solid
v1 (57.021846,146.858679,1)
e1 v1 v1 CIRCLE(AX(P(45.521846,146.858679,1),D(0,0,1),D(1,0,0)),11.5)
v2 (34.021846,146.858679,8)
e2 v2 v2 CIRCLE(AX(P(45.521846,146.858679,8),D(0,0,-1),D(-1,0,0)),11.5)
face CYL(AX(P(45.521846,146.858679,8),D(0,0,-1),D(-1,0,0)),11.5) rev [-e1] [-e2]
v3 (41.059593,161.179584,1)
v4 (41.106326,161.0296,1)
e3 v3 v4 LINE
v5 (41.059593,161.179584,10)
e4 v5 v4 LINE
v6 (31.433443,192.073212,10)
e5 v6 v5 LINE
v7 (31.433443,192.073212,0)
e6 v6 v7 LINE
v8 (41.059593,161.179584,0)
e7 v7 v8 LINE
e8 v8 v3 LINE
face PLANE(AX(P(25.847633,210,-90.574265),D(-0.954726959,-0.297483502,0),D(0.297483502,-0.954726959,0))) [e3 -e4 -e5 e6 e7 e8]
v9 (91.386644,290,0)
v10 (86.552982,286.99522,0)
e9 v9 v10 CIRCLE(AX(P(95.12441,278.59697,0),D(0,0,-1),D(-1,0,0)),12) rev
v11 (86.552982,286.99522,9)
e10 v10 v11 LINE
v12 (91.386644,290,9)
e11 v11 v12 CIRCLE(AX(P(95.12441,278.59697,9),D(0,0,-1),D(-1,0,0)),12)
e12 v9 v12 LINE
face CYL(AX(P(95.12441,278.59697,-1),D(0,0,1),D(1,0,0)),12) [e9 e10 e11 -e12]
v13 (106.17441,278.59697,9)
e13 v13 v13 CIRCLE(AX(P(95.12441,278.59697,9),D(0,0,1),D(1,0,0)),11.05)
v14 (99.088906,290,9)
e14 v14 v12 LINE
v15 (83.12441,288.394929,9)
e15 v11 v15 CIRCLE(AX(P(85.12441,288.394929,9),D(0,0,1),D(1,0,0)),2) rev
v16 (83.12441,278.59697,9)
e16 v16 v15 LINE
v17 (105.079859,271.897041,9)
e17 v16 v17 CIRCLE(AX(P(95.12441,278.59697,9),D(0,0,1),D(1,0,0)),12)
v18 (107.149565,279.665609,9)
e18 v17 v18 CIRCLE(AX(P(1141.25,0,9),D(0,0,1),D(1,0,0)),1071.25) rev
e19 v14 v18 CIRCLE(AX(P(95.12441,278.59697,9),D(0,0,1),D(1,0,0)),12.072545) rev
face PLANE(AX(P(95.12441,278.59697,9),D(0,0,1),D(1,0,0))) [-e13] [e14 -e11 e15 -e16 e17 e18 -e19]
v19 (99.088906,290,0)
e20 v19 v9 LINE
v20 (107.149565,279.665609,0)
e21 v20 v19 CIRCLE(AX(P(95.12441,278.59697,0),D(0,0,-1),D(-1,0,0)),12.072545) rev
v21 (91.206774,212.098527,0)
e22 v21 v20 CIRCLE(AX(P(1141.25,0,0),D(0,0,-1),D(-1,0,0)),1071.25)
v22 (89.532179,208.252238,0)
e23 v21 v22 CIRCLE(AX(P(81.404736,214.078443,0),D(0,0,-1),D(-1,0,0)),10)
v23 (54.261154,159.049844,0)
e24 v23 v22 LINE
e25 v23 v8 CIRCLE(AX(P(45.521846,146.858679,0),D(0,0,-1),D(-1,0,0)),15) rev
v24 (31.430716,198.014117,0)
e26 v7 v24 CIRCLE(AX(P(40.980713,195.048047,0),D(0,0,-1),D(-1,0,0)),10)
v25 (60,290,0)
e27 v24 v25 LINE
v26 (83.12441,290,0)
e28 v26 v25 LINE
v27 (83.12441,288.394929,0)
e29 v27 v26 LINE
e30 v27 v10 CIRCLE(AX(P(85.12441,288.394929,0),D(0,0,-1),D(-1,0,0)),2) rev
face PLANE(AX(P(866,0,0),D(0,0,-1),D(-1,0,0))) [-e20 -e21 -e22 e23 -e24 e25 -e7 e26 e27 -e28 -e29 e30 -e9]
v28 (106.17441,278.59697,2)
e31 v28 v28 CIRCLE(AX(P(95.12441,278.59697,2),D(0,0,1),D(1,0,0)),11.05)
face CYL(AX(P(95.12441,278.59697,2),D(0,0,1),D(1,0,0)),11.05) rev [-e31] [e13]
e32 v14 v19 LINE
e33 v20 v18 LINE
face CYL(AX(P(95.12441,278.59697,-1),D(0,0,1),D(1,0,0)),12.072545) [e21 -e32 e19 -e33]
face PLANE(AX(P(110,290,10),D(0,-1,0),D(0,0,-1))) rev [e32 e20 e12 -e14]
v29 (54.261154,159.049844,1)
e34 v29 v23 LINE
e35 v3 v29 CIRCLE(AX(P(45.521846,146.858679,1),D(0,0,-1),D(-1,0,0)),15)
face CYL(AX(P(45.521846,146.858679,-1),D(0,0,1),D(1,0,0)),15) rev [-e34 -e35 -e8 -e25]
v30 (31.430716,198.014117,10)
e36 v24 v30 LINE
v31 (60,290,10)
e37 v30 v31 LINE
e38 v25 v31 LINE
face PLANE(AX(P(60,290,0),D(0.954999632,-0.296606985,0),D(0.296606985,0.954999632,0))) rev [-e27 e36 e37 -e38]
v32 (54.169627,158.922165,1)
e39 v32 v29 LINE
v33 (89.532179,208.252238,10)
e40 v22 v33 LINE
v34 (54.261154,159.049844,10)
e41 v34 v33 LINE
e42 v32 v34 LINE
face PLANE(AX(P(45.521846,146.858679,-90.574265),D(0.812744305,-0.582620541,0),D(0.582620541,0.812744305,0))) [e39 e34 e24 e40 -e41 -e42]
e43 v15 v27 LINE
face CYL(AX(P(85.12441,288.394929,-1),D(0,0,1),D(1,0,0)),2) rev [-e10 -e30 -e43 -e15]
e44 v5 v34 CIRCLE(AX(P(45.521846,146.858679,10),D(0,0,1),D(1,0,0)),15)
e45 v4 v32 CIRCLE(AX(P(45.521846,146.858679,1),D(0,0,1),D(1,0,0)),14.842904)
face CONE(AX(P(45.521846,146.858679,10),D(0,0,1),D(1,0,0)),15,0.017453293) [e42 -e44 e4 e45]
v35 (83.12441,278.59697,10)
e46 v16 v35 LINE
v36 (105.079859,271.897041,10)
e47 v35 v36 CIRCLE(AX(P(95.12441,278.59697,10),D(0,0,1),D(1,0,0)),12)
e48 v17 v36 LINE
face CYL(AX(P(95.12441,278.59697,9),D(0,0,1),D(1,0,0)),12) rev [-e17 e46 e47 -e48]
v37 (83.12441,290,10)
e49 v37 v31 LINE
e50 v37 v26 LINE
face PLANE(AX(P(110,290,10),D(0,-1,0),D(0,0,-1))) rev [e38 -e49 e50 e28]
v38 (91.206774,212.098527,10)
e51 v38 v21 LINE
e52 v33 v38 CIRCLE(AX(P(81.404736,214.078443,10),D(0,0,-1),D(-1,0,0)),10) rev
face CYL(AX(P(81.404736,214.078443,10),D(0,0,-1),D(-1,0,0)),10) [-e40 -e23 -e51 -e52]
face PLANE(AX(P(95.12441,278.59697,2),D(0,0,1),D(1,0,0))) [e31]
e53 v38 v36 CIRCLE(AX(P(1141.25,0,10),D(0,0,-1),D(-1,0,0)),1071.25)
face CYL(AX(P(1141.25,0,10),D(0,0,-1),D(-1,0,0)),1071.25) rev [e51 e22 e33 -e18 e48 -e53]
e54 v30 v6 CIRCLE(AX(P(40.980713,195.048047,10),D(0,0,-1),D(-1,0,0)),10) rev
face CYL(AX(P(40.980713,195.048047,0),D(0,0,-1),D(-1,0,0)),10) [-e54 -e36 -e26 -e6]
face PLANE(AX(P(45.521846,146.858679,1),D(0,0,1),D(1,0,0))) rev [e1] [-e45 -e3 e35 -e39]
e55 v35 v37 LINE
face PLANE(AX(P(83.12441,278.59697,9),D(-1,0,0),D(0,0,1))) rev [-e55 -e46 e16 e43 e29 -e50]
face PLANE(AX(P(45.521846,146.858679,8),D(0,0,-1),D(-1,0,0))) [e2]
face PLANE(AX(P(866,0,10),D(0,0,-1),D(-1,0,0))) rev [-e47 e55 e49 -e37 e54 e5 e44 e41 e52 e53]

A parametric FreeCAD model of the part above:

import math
import FreeCAD as App
import Part
import Sketcher

V = App.Vector


def edges_at(feature, points):
    """Names of the edges that pass closest to the given points."""
    edges = feature.Shape.Edges
    near = lambda p: min(range(len(edges)), key=lambda i: edges[i].distToShape(Part.Vertex(*p))[0])
    return sorted({f"Edge{near(p) + 1}" for p in points})


def faces_at(feature, points):
    """Names of the faces that lie closest to the given points."""
    faces = feature.Shape.Faces
    near = lambda p: min(range(len(faces)), key=lambda i: faces[i].distToShape(Part.Vertex(*p))[0])
    return sorted({f"Face{near(p) + 1}" for p in points})


def add_polygon(sketch, points):
    """Adds a closed chain of lines whose ends are joined by coincident constraints."""
    first, n = sketch.GeometryCount, len(points)
    for a, b in zip(points, points[1:] + points[:1]):
        sketch.addGeometry(Part.LineSegment(App.Vector(*a, 0), App.Vector(*b, 0)), False)
    for i in range(n):
        sketch.addConstraint(Sketcher.Constraint("Coincident", first + i, 2, first + (i + 1) % n, 1))

doc = App.newDocument("Part")
params = doc.addObject("Spreadsheet::Sheet", "Params")
for row, (alias, value) in enumerate([
    ("sketch1_radius", "866 mm"),
    ("sketch1_width", "70 mm"),
    ("sketch1_width2", "60 mm"),
    ("sketch1_radius2", "1071.25 mm"),
    ("pad1_length", "10 mm"),
    ("pad2_length", "10 mm"),
    ("sketch4_diameter", "30 mm"),
    ("pad3_length", "9 mm"),
    ("draft_angle", "1 deg"),
    ("fillet_radius", "10 mm"),
    ("sketch5_diameter", "23 mm"),
    ("pocket2_length", "14 mm"),
    ("sketch6_diameter", "30 mm"),
    ("pocket3_length", "2 mm"),
    ("sketch7_radius", "12 mm"),
    ("pocket4_length", "1 mm"),
    ("sketch8_diameter", "22.1 mm"),
    ("pocket5_length", "7 mm"),
    ("sketch9_radius", "12 mm"),
    ("pocket6_length", "10 mm"),
    ("fillet2_radius", "2 mm"),
    ("pocket7_length", "10 mm"),
    ("fillet3_radius", "10 mm"),
], start=1):
    params.set(f"A{row}", alias)
    params.set(f"B{row}", "=" + value)
    params.setAlias(f"B{row}", alias)

body = doc.addObject("PartDesign::Body", "Body")

sketch1 = body.newObject("Sketcher::SketchObject", "Sketch")
sketch1.AttachmentSupport = (doc.getObject("XY_Plane"), [""])
sketch1.MapMode = "FlatFace"
sketch1.addGeometry([
    Part.LineSegment(V(0, 0, 0), V(70, 0, 0)),
    Part.ArcOfCircle(Part.Circle(V(1141, 0, 0), V(0, 0, 1), 1071), math.radians(164.29), math.radians(180)),
    Part.LineSegment(V(110, 290, 0), V(50, 290, 0)),
    Part.ArcOfCircle(Part.Circle(V(866, 0, 0), V(0, 0, 1), 866), math.radians(160.44), math.radians(180)),
], False)
sketch1.addConstraint([
    Sketcher.Constraint("Coincident", 0, 2, 1, 2),
    Sketcher.Constraint("Coincident", 1, 1, 2, 1),
    Sketcher.Constraint("Coincident", 2, 2, 3, 1),
    Sketcher.Constraint("Coincident", 3, 2, 0, 1),
    Sketcher.Constraint("Horizontal", 0),
    Sketcher.Constraint("Horizontal", 2),
    Sketcher.Constraint("PointOnObject", 1, 3, -1),
    Sketcher.Constraint("PointOnObject", 3, 3, -1),
    Sketcher.Constraint("PointOnObject", 0, 2, -1),
    Sketcher.Constraint("Radius", 3, 866.0),
    Sketcher.Constraint("DistanceX", 0, 1, 0, 2, 70.0),
    Sketcher.Constraint("DistanceX", 2, 2, 2, 1, 60.0),
    Sketcher.Constraint("Radius", 1, 1071.25),
    Sketcher.Constraint("DistanceX", -1, 1, 3, 3, 866.0),
])
sketch1.setExpression("Constraints[9]", "Params.sketch1_radius")
sketch1.setExpression("Constraints[10]", "Params.sketch1_width")
sketch1.setExpression("Constraints[11]", "Params.sketch1_width2")
sketch1.setExpression("Constraints[12]", "Params.sketch1_radius2")
pad1 = body.newObject("PartDesign::Pad", "Pad")
pad1.Profile = sketch1
pad1.setExpression("Length", "Params.pad1_length")

sketch2 = body.newObject("Sketcher::SketchObject", "Sketch001")
sketch2.AttachmentSupport = (doc.getObject("XY_Plane"), [""])
sketch2.MapMode = "FlatFace"
sketch2.AttachmentOffset = App.Placement(V(0, 0, 10), App.Rotation())
add_polygon(sketch2, [(-33, 210), (-33, -43), (134, -43), (134, 210)])
sketch2.addConstraint([
    Sketcher.Constraint("Vertical", 0),
    Sketcher.Constraint("Horizontal", 1),
    Sketcher.Constraint("Vertical", 2),
    Sketcher.Constraint("Horizontal", 3),
    Sketcher.Constraint("DistanceY", -1, 1, 2, 2, 210.0),
    Sketcher.Constraint("DistanceY", 0, 2, 0, 1, 253.347099),
    Sketcher.Constraint("DistanceX", 1, 1, 1, 2, 166.922568),
    Sketcher.Constraint("DistanceX", 0, 2, -1, 1, 33.20451),
])
pocket1 = body.newObject("PartDesign::Pocket", "Pocket")
pocket1.Profile = sketch2
pocket1.Type = "UpToFirst"

sketch3 = body.newObject("Sketcher::SketchObject", "Sketch002")
sketch3.AttachmentSupport = (doc.getObject("XY_Plane"), [""])
sketch3.MapMode = "FlatFace"
sketch3.AttachmentOffset = App.Placement(V(0, 0, 10), App.Rotation())
add_polygon(sketch3, [(26, 210), (46, 147), (91, 210)])
sketch3.addConstraint([
    Sketcher.Constraint("Horizontal", 2),
    Sketcher.Constraint("DistanceY", -1, 1, 1, 2, 210.0),
    Sketcher.Constraint("DistanceX", 2, 2, 2, 1, 64.93744),
    Sketcher.Constraint("DistanceY", -1, 1, 0, 2, 146.858679),
    Sketcher.Constraint("Distance", 0, 66.135475),
    Sketcher.Constraint("DistanceX", -1, 1, 0, 2, 45.521846),
])
pad2 = body.newObject("PartDesign::Pad", "Pad001")
pad2.Profile = sketch3
pad2.setExpression("Length", "Params.pad2_length")
pad2.Reversed = True
body2 = doc.addObject("PartDesign::Body", "Body001")

sketch4 = body2.newObject("Sketcher::SketchObject", "Sketch003")
sketch4.AttachmentSupport = (doc.getObject("XY_Plane001"), [""])
sketch4.MapMode = "FlatFace"
sketch4.AttachmentOffset = App.Placement(V(0, 0, 10), App.Rotation())
sketch4.addGeometry(Part.Circle(V(46, 147, 0), V(0, 0, 1), 15), False)
sketch4.addConstraint([
    Sketcher.Constraint("Diameter", 0, 30.0),
    Sketcher.Constraint("DistanceY", -1, 1, 0, 3, 146.858679),
    Sketcher.Constraint("DistanceX", -1, 1, 0, 3, 45.521846),
])
sketch4.setExpression("Constraints[0]", "Params.sketch4_diameter")
pad3 = body2.newObject("PartDesign::Pad", "Pad002")
pad3.Profile = sketch4
pad3.setExpression("Length", "Params.pad3_length")
pad3.Reversed = True
doc.recompute()

datumplane = body2.newObject("PartDesign::Plane", "DatumPlane")
datumplane.AttachmentSupport = (doc.getObject("XY_Plane001"), [""])
datumplane.MapMode = "FlatFace"
datumplane.AttachmentOffset = App.Placement(V(0, 0, 10), App.Rotation())
draft = body2.newObject("PartDesign::Draft", "Draft")
draft.Base = (pad3, faces_at(pad3, [(30.522, 146.859, 5.5)]))
draft.NeutralPlane = (datumplane, [""])
draft.setExpression("Angle", "Params.draft_angle")
draft.Reversed = True
doc.recompute()

boolean = body.newObject("PartDesign::Boolean", "Boolean")
boolean.Type = "Fuse"
boolean.addObjects([body2])
doc.recompute()

fillet = body.newObject("PartDesign::Fillet", "Fillet")
fillet.Base = (boolean, edges_at(boolean, [(25.848, 210, 5), (90.785, 210, 5)]))
fillet.setExpression("Radius", "Params.fillet_radius")

sketch5 = body.newObject("Sketcher::SketchObject", "Sketch004")
sketch5.AttachmentSupport = (doc.getObject("XY_Plane"), [""])
sketch5.MapMode = "FlatFace"
sketch5.AttachmentOffset = App.Placement(V(0, 0, 1), App.Rotation())
sketch5.addGeometry(Part.Circle(V(46, 147, 0), V(0, 0, 1), 12), False)
sketch5.addConstraint([
    Sketcher.Constraint("Diameter", 0, 23.0),
    Sketcher.Constraint("DistanceY", -1, 1, 0, 3, 146.858679),
    Sketcher.Constraint("DistanceX", -1, 1, 0, 3, 45.521846),
])
sketch5.setExpression("Constraints[0]", "Params.sketch5_diameter")
pocket2 = body.newObject("PartDesign::Pocket", "Pocket001")
pocket2.Profile = sketch5
pocket2.setExpression("Length", "Params.pocket2_length")
pocket2.Midplane = True

sketch6 = body.newObject("Sketcher::SketchObject", "Sketch005")
sketch6.AttachmentSupport = (doc.getObject("XY_Plane"), [""])
sketch6.MapMode = "FlatFace"
sketch6.AttachmentOffset = App.Placement(V(0, 0, 1), App.Rotation())
sketch6.addGeometry(Part.Circle(V(46, 147, 0), V(0, 0, 1), 15), False)
sketch6.addConstraint([
    Sketcher.Constraint("Diameter", 0, 30.0),
    Sketcher.Constraint("DistanceY", -1, 1, 0, 3, 146.858679),
    Sketcher.Constraint("DistanceX", -1, 1, 0, 3, 45.521846),
])
sketch6.setExpression("Constraints[0]", "Params.sketch6_diameter")
pocket3 = body.newObject("PartDesign::Pocket", "Pocket002")
pocket3.Profile = sketch6
pocket3.setExpression("Length", "Params.pocket3_length")

sketch7 = body.newObject("Sketcher::SketchObject", "Sketch006")
sketch7.AttachmentSupport = (doc.getObject("XY_Plane"), [""])
sketch7.MapMode = "FlatFace"
sketch7.AttachmentOffset = App.Placement(V(0, 0, 10), App.Rotation())
sketch7.addGeometry([
    Part.LineSegment(V(83, 293, 0), V(83, 279, 0)),
    Part.ArcOfCircle(Part.Circle(V(95, 279, 0), V(0, 0, 1), 12), math.radians(180), math.radians(326)),
    Part.LineSegment(V(105, 272, 0), V(112, 272, 0)),
    Part.LineSegment(V(112, 272, 0), V(112, 293, 0)),
    Part.LineSegment(V(112, 293, 0), V(83, 293, 0)),
], False)
sketch7.addConstraint([
    Sketcher.Constraint("Tangent", 0, 2, 1, 1),
    Sketcher.Constraint("Coincident", 1, 2, 2, 1),
    Sketcher.Constraint("Coincident", 2, 2, 3, 1),
    Sketcher.Constraint("Coincident", 3, 2, 4, 1),
    Sketcher.Constraint("Coincident", 4, 2, 0, 1),
    Sketcher.Constraint("Vertical", 0),
    Sketcher.Constraint("Horizontal", 2),
    Sketcher.Constraint("Vertical", 3),
    Sketcher.Constraint("Horizontal", 4),
    Sketcher.Constraint("Radius", 1, 12.0),
    Sketcher.Constraint("DistanceY", 0, 2, 0, 1, 14.066151),
    Sketcher.Constraint("DistanceX", 2, 1, 2, 2, 6.572547),
    Sketcher.Constraint("DistanceX", 4, 2, 4, 1, 28.574764),
    Sketcher.Constraint("DistanceX", -1, 1, 1, 3, 95.12441),
    Sketcher.Constraint("DistanceY", -1, 1, 1, 3, 278.59697),
])
sketch7.setExpression("Constraints[9]", "Params.sketch7_radius")
pocket4 = body.newObject("PartDesign::Pocket", "Pocket003")
pocket4.Profile = sketch7
pocket4.setExpression("Length", "Params.pocket4_length")

sketch8 = body.newObject("Sketcher::SketchObject", "Sketch007")
sketch8.AttachmentSupport = (doc.getObject("XY_Plane"), [""])
sketch8.MapMode = "FlatFace"
sketch8.AttachmentOffset = App.Placement(V(0, 0, 9), App.Rotation())
sketch8.addGeometry(Part.Circle(V(95, 279, 0), V(0, 0, 1), 11), False)
sketch8.addConstraint([
    Sketcher.Constraint("Diameter", 0, 22.1),
    Sketcher.Constraint("DistanceX", -1, 1, 0, 3, 95.12441),
    Sketcher.Constraint("DistanceY", -1, 1, 0, 3, 278.59697),
])
sketch8.setExpression("Constraints[0]", "Params.sketch8_diameter")
pocket5 = body.newObject("PartDesign::Pocket", "Pocket004")
pocket5.Profile = sketch8
pocket5.setExpression("Length", "Params.pocket5_length")

sketch9 = body.newObject("Sketcher::SketchObject", "Sketch008")
sketch9.AttachmentSupport = (doc.getObject("XY_Plane"), [""])
sketch9.MapMode = "FlatFace"
sketch9.AttachmentOffset = App.Placement(V(0, 0, 9), App.Rotation())
sketch9.addGeometry([
    Part.LineSegment(V(83.1, 292, 0), V(83.1, 278.6, 0)),
    Part.ArcOfCircle(Part.Circle(V(95.1, 278.6, 0), V(0, 0, 1), 12), math.radians(108), math.radians(180)),
    Part.LineSegment(V(91.4, 290, 0), V(91.4, 292, 0)),
    Part.LineSegment(V(91.4, 292, 0), V(83.1, 292, 0)),
    Part.LineSegment(V(97.4, 292, 0), V(97.4, 290.4, 0)),
    Part.ArcOfCircle(Part.Circle(V(95.1, 278.6, 0), V(0, 0, 1), 12.1), math.radians(0), math.radians(79)),
    Part.LineSegment(V(107.2, 278.6, 0), V(113.1, 278.6, 0)),
    Part.LineSegment(V(113.1, 278.6, 0), V(113.1, 292, 0)),
    Part.LineSegment(V(113.1, 292, 0), V(97.4, 292, 0)),
], False)
sketch9.addConstraint([
    Sketcher.Constraint("Tangent", 0, 2, 1, 2),
    Sketcher.Constraint("Coincident", 1, 1, 2, 1),
    Sketcher.Constraint("Coincident", 2, 2, 3, 1),
    Sketcher.Constraint("Coincident", 3, 2, 0, 1),
    Sketcher.Constraint("Coincident", 4, 2, 5, 2),
    Sketcher.Constraint("Coincident", 5, 1, 6, 1),
    Sketcher.Constraint("Coincident", 6, 2, 7, 1),
    Sketcher.Constraint("Coincident", 7, 2, 8, 1),
    Sketcher.Constraint("Coincident", 8, 2, 4, 1),
    Sketcher.Constraint("Vertical", 0),
    Sketcher.Constraint("Vertical", 2),
    Sketcher.Constraint("Horizontal", 3),
    Sketcher.Constraint("Vertical", 4),
    Sketcher.Constraint("Horizontal", 6),
    Sketcher.Constraint("Vertical", 7),
    Sketcher.Constraint("Horizontal", 8),
    Sketcher.Constraint("Coincident", 5, 3, 1, 3),
    Sketcher.Constraint("Horizontal", 0, 2, 5, 1),
    Sketcher.Constraint("Horizontal", 3, 2, 7, 2),
    Sketcher.Constraint("Radius", 1, 12.0),
    Sketcher.Constraint("DistanceY", -1, 1, 1, 1, 290.0),
    Sketcher.Constraint("Radius", 5, 12.072545),
    Sketcher.Constraint("DistanceX", 3, 2, 3, 1, 8.262234),
    Sketcher.Constraint("DistanceX", 6, 1, 6, 2, 5.932968),
    Sketcher.Constraint("DistanceX", 8, 2, 8, 1, 15.711266),
    Sketcher.Constraint("DistanceY", 0, 2, 0, 1, 13.364505),
    Sketcher.Constraint("DistanceX", -1, 1, 1, 3, 95.12441),
])
sketch9.setExpression("Constraints[19]", "Params.sketch9_radius")
pocket6 = body.newObject("PartDesign::Pocket", "Pocket005")
pocket6.Profile = sketch9
pocket6.setExpression("Length", "Params.pocket6_length")
doc.recompute()

fillet2 = body.newObject("PartDesign::Fillet", "Fillet001")
fillet2.Base = (pocket6, edges_at(pocket6, [(83.124, 278.597, 4.5)]))
fillet2.setExpression("Radius", "Params.fillet2_radius")

sketch10 = body.newObject("Sketcher::SketchObject", "Sketch009")
sketch10.AttachmentSupport = (doc.getObject("XY_Plane"), [""])
sketch10.MapMode = "FlatFace"
sketch10.AttachmentOffset = App.Placement(V(0, 0, 10), App.Rotation())
add_polygon(sketch10, [(29, 191), (60, 290), (45, 302), (9, 204)])
sketch10.addConstraint([
    Sketcher.Constraint("DistanceX", -1, 1, 0, 2, 60.0),
    Sketcher.Constraint("DistanceY", -1, 1, 0, 2, 290.0),
    Sketcher.Constraint("Distance", 0, 103.233512),
    Sketcher.Constraint("Distance", 1, 19.234289),
    Sketcher.Constraint("Distance", 2, 103.661638),
    Sketcher.Constraint("DistanceX", -1, 1, 1, 2, 44.69011),
    Sketcher.Constraint("DistanceY", -1, 1, 2, 2, 204.425441),
    Sketcher.Constraint("DistanceX", -1, 1, 3, 2, 29.380219),
])
pocket7 = body.newObject("PartDesign::Pocket", "Pocket006")
pocket7.Profile = sketch10
pocket7.setExpression("Length", "Params.pocket7_length")
doc.recompute()

fillet3 = body.newObject("PartDesign::Fillet", "Fillet002")
fillet3.Base = (pocket7, edges_at(pocket7, [(30.508, 195.043, 5)]))
fillet3.setExpression("Radius", "Params.fillet3_radius")

doc.recompute()
